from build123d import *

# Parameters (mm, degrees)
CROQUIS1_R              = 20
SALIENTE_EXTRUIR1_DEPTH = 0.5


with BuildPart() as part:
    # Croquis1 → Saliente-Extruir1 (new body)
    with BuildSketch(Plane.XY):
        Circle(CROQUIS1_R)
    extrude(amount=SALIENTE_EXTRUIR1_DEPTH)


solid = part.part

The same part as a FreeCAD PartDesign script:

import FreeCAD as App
import Part
import Sketcher

doc = App.newDocument("Part")
body = doc.addObject("PartDesign::Body", "Body")

# Sketch on XY plane
sketch1 = body.newObject("Sketcher::SketchObject", "Sketch")
sketch1.AttachmentSupport = (doc.getObject("XY_Plane"), [""])
sketch1.MapMode = "FlatFace"
sketch1.addGeometry(Part.Circle(App.Vector(0, 0, 0), App.Vector(0, 0, 1), 20), False)
sketch1.addConstraint(Sketcher.Constraint("Coincident", 0, 3, -1, 1))
sketch1.addConstraint(Sketcher.Constraint("Diameter", 0, 40.0))
pad1 = body.newObject("PartDesign::Pad", "Pad")
pad1.Profile = sketch1
pad1.Length = 0.5

doc.recompute()
